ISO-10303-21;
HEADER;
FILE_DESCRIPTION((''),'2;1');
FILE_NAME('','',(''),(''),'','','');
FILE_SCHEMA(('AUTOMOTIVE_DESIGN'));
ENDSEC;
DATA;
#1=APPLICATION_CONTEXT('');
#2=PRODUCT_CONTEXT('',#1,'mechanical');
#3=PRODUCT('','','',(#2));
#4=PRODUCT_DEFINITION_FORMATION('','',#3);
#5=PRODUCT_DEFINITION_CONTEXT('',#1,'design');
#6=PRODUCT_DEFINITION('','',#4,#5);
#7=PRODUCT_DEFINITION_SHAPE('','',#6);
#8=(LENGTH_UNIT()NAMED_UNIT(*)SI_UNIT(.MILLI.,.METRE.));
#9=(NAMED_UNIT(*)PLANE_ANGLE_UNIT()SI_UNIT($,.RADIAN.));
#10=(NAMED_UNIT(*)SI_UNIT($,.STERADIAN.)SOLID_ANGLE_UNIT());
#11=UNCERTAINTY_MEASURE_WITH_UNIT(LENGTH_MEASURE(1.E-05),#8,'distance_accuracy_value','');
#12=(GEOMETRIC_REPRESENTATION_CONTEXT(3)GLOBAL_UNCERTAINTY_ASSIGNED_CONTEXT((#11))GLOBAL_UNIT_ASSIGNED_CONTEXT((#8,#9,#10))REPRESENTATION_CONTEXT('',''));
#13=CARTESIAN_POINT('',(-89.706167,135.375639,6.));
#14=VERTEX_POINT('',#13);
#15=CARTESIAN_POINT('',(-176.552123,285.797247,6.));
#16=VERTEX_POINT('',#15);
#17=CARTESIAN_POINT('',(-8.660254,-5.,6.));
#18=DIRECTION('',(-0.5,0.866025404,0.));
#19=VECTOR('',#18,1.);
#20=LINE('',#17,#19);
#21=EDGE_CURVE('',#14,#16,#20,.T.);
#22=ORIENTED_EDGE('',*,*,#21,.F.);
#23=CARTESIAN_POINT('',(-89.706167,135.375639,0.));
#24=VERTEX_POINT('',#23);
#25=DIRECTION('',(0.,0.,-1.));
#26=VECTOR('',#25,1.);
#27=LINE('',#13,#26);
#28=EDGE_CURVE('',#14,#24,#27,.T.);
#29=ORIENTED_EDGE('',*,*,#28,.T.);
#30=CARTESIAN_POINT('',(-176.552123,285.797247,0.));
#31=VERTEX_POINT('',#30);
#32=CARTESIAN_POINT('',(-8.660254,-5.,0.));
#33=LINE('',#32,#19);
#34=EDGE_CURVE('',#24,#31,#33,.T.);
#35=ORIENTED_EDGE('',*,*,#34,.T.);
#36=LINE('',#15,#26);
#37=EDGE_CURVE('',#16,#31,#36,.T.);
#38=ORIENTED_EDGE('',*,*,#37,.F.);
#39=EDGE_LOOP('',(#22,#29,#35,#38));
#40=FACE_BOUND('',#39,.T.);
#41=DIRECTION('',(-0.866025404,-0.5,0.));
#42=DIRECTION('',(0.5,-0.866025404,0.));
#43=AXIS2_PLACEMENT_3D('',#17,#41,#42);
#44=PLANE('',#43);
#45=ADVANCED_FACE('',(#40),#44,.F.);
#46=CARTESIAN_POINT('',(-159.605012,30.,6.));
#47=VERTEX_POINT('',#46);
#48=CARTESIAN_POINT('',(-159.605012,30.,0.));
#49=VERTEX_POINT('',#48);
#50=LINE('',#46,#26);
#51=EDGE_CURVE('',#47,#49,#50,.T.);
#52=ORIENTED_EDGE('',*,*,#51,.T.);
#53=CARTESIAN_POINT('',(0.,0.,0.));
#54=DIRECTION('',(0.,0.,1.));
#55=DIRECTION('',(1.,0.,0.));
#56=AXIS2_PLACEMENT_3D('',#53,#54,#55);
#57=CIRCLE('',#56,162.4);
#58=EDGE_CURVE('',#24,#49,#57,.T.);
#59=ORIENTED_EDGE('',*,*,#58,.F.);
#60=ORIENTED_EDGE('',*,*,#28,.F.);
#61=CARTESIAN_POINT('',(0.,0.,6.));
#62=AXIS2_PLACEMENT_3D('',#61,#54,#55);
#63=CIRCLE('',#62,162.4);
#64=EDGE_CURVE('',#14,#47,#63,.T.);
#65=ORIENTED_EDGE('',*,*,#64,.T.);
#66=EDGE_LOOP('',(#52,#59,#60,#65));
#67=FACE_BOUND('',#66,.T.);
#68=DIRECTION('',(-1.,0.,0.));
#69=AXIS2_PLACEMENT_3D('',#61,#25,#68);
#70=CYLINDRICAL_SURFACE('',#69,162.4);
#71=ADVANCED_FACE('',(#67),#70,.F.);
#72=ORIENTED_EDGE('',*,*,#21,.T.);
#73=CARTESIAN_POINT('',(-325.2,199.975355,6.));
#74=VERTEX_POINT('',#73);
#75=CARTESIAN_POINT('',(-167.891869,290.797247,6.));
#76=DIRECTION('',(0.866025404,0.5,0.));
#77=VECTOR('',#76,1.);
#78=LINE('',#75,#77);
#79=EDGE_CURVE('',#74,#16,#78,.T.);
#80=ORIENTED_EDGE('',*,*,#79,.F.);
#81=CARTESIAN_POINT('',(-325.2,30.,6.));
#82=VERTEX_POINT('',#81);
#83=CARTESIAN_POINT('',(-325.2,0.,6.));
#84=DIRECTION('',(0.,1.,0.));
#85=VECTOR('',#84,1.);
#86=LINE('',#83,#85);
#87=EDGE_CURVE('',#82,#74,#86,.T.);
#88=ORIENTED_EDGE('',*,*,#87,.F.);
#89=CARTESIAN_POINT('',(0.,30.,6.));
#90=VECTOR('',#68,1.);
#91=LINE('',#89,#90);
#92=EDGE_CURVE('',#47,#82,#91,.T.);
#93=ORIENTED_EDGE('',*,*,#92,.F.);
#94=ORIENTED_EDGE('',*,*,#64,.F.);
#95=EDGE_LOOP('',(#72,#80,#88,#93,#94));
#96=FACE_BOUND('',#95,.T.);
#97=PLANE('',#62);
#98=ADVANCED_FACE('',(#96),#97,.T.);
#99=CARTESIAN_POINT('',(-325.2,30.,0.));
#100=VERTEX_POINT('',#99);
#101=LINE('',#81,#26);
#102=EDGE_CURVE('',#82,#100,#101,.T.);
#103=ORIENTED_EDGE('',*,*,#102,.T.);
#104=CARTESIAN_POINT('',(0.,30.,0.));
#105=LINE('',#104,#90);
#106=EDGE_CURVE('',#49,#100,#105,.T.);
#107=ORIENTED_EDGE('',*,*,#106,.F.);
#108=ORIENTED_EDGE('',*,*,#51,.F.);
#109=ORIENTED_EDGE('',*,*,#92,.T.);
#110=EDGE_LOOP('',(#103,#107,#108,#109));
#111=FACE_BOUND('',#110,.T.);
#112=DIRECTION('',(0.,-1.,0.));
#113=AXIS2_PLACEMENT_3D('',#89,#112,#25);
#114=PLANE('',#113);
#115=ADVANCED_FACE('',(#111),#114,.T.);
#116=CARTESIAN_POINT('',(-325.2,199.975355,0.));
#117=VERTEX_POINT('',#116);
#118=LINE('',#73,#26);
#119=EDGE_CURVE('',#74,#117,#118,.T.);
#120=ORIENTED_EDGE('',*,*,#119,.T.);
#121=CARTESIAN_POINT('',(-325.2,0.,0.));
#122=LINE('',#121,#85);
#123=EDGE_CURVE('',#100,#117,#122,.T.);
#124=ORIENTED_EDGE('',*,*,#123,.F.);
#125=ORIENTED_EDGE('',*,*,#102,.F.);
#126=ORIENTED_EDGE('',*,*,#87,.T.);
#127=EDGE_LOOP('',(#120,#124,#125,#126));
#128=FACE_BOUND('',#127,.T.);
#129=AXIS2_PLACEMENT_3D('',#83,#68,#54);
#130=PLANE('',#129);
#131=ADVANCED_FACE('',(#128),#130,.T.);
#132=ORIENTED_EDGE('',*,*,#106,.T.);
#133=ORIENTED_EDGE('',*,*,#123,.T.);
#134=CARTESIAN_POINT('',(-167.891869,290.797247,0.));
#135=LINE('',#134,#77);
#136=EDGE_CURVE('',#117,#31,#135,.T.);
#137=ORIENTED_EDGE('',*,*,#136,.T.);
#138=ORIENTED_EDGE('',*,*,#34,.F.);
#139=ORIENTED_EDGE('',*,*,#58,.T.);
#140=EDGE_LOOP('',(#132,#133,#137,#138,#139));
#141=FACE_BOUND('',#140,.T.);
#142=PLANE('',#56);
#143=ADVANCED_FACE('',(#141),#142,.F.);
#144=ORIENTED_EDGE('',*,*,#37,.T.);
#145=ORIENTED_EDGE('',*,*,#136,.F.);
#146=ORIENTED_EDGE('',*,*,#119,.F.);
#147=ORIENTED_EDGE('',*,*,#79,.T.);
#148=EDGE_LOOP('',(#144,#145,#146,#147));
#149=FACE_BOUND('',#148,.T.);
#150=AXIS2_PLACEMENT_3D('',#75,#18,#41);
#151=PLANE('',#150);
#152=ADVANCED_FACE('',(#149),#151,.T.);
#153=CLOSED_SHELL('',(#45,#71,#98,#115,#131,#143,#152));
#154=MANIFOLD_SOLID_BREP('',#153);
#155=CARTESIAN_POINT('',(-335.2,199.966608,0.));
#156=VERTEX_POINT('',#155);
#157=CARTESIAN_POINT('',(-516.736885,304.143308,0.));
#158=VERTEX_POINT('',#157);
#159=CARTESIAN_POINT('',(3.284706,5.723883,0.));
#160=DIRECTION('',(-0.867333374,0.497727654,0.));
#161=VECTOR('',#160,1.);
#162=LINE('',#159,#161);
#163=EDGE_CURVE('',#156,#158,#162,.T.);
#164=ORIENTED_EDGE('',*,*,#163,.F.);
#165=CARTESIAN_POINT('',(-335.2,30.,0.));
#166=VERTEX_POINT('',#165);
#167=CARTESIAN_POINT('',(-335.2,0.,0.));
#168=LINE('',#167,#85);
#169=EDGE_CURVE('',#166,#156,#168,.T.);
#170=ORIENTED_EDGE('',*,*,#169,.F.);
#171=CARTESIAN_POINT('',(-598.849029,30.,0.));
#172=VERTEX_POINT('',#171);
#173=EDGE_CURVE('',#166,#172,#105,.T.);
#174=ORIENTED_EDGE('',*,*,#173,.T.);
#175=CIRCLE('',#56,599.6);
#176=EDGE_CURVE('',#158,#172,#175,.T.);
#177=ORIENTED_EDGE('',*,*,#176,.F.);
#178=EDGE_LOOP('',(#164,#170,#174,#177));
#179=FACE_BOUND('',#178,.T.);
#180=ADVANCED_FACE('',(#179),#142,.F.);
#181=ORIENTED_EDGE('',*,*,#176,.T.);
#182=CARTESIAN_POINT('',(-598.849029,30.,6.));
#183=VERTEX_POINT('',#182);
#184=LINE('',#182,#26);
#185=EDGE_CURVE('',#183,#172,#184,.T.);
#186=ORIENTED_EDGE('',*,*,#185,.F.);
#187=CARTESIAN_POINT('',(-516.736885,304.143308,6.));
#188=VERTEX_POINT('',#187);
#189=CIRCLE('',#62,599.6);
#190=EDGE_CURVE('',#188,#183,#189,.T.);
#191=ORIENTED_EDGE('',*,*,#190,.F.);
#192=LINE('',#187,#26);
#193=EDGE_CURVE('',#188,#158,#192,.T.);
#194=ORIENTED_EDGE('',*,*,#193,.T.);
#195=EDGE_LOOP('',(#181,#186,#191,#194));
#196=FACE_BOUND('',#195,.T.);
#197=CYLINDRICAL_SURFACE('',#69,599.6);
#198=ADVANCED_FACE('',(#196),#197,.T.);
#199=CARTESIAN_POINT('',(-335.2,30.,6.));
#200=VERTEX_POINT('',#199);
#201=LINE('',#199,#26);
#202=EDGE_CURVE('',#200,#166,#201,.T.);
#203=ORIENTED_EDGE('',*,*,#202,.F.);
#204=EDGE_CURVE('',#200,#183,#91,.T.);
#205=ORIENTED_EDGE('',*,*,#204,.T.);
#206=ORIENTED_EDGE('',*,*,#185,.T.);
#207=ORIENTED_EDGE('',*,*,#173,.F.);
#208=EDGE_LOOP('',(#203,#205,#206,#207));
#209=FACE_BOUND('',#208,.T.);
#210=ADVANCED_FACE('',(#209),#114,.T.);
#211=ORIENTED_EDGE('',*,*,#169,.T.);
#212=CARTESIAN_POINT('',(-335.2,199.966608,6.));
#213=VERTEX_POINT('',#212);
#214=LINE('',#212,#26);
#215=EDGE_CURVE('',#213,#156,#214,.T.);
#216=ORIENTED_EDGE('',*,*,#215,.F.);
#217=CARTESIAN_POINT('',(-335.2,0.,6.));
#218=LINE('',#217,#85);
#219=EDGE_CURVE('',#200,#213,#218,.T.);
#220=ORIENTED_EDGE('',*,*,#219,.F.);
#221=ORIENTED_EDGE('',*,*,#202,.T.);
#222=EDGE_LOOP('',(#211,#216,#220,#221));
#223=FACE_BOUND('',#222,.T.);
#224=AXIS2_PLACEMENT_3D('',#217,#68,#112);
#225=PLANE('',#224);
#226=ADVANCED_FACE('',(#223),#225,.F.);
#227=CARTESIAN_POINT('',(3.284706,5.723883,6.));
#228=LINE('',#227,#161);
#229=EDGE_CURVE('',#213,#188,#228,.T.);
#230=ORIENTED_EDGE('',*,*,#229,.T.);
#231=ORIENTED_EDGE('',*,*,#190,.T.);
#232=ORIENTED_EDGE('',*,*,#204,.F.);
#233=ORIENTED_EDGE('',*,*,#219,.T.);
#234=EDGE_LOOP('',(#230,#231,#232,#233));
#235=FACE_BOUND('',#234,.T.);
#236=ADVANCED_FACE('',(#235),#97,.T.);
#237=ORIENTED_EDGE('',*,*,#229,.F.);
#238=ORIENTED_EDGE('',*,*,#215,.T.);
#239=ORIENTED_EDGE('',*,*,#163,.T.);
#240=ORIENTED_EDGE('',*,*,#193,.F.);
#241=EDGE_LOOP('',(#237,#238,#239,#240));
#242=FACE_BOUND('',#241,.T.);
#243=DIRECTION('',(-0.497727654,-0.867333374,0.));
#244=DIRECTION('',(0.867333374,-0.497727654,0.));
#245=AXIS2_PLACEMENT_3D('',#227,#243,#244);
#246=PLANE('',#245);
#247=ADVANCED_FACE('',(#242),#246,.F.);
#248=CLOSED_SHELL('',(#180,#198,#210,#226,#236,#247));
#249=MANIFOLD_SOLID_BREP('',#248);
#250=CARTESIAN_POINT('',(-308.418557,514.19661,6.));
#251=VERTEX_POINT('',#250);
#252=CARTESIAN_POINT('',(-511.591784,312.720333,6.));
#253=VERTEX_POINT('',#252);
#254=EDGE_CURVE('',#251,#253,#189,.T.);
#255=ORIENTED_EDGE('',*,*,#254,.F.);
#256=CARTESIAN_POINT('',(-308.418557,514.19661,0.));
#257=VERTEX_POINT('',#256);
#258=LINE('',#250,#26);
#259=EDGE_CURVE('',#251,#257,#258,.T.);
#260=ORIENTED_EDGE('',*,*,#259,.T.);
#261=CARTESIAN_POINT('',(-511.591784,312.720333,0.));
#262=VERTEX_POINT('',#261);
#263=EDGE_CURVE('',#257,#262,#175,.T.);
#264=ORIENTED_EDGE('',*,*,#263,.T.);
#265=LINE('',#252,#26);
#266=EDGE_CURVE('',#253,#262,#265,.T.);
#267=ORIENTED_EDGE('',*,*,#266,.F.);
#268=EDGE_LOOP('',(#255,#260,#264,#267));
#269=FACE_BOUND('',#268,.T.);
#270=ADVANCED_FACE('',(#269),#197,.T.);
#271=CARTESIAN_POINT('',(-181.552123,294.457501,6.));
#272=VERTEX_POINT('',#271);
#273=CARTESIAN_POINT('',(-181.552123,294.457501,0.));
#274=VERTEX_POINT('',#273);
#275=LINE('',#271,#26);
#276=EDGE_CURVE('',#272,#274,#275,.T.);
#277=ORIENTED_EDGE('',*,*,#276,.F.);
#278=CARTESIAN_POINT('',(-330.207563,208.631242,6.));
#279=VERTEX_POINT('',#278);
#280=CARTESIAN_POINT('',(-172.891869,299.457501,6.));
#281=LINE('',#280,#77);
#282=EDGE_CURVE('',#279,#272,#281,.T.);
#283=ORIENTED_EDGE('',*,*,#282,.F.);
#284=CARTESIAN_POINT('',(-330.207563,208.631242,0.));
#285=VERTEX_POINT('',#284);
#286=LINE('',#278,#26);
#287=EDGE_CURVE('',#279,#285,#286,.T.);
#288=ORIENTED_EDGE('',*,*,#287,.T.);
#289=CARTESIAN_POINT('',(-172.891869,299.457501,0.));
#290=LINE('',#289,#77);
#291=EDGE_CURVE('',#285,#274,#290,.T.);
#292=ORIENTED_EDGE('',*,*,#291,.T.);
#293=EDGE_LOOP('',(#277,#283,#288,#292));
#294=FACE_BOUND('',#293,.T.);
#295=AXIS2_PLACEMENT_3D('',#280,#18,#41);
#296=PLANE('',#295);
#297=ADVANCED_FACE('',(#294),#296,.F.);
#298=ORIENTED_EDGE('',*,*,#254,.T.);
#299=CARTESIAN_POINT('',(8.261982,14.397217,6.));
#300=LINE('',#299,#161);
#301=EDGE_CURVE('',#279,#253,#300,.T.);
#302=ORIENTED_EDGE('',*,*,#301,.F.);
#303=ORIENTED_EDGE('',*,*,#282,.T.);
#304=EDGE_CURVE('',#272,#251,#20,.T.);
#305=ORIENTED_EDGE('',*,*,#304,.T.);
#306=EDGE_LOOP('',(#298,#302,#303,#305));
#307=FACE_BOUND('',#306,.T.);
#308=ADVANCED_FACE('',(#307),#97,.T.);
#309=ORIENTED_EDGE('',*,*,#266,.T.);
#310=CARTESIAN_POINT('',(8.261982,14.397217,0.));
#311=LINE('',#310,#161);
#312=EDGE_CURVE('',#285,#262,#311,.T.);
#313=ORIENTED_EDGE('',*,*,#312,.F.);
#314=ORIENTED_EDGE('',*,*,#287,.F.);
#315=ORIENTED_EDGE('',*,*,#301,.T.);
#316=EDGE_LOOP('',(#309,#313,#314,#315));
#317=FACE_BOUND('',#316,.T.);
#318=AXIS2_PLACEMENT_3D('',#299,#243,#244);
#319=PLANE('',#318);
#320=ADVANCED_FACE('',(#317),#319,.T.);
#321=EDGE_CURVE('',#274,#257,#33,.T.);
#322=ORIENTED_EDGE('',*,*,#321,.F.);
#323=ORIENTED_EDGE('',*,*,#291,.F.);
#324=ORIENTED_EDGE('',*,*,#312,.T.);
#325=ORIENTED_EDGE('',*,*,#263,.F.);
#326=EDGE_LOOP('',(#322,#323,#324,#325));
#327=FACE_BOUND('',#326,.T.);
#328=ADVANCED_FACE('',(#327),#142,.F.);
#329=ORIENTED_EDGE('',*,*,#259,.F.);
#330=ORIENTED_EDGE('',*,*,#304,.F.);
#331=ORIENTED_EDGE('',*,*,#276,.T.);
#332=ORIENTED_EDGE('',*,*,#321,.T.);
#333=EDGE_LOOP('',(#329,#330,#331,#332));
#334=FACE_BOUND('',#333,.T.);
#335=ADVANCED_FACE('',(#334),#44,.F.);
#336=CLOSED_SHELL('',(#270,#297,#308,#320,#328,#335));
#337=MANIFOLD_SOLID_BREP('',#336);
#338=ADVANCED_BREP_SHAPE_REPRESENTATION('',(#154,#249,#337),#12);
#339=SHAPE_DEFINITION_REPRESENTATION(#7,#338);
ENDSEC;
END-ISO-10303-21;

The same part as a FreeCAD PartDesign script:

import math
import FreeCAD as App
import Part
import Sketcher
from FreeCAD import Vector
Q = App.Units.Quantity

doc = App.newDocument("Part")
body = doc.addObject("PartDesign::Body", "Body")

# Sketch on XY plane
sketch1 = doc.addObject("Sketcher::SketchObject", "Sketch")
body.addObject(sketch1)
sketch1.AttachmentSupport = (doc.XY_Plane, [""])
sketch1.MapMode = "FlatFace"
sketch1.addGeometry([
    Part.LineSegment(Vector(-335, 200, 0), Vector(-517, 304, 0)),
    Part.ArcOfCircle(Part.Circle(Vector(0, 0, 0), Vector(0, 0, 1), 600), math.radians(150), math.radians(177)),
    Part.LineSegment(Vector(-599, 30, 0), Vector(-335, 30, 0)),
    Part.LineSegment(Vector(-335, 30, 0), Vector(-335, 200, 0)),
], False)
sketch1.addConstraint([
    Sketcher.Constraint("Coincident", 0, 2, 1, 1),
    Sketcher.Constraint("Coincident", 1, 2, 2, 1),
    Sketcher.Constraint("Coincident", 2, 2, 3, 1),
    Sketcher.Constraint("Coincident", 3, 2, 0, 1),
    Sketcher.Constraint("Horizontal", 2),
    Sketcher.Constraint("Vertical", 3),
    Sketcher.Constraint("Coincident", 1, 3, -1, 1),
    Sketcher.Constraint("Radius", 1, 599.6),
    Sketcher.Constraint("DistanceY", -1, 1, 2, 2, 30.0),
    Sketcher.Constraint("DistanceX", 2, 2, -1, 1, 335.2),
    Sketcher.Constraint("DistanceY", 3, 1, 3, 2, 169.966608),
    Sketcher.Constraint("DistanceY", 3, 2, 0, 2, 104.176699),
])
pad1 = doc.addObject("PartDesign::Pad", "Pad")
body.addObject(pad1)
pad1.Profile = sketch1
pad1.Length = 6
body2 = doc.addObject("PartDesign::Body", "Body001")

# Sketch on XY plane
sketch2 = doc.addObject("Sketcher::SketchObject", "Sketch001")
body2.addObject(sketch2)
sketch2.AttachmentSupport = (doc.getObject("XY_Plane001"), [""])
sketch2.MapMode = "FlatFace"
sketch2.addGeometry([
    Part.LineSegment(Vector(-182, 294, 0), Vector(-308, 514, 0)),
    Part.ArcOfCircle(Part.Circle(Vector(0, 0, 0), Vector(0, 0, 1), 600), math.radians(121), math.radians(149)),
    Part.LineSegment(Vector(-512, 313, 0), Vector(-330, 209, 0)),
    Part.LineSegment(Vector(-330, 209, 0), Vector(-182, 294, 0)),
], False)
sketch2.addConstraint([
    Sketcher.Constraint("Coincident", 0, 2, 1, 1),
    Sketcher.Constraint("Coincident", 1, 2, 2, 1),
    Sketcher.Constraint("Coincident", 2, 2, 3, 1),
    Sketcher.Constraint("Coincident", 3, 2, 0, 1),
    Sketcher.Constraint("Coincident", 1, 3, -1, 1),
    Sketcher.Constraint("Perpendicular", 0, 3),
    Sketcher.Constraint("Radius", 1, 599.6),
    Sketcher.Constraint("Angle", 0, Q("120 deg")),
    Sketcher.Constraint("DistanceY", -1, 1, 3, 2, 294.457501),
    Sketcher.Constraint("DistanceY", -1, 1, 0, 2, 514.19661),
    Sketcher.Constraint("DistanceX", 1, 2, 2, 2, 181.384221),
    Sketcher.Constraint("DistanceX", 2, 2, 3, 2, 148.65544),
])
pad2 = doc.addObject("PartDesign::Pad", "Pad001")
body2.addObject(pad2)
pad2.Profile = sketch2
pad2.Length = 6
body3 = doc.addObject("PartDesign::Body", "Body002")

# Sketch on XY plane
sketch3 = doc.addObject("Sketcher::SketchObject", "Sketch002")
body3.addObject(sketch3)
sketch3.AttachmentSupport = (doc.getObject("XY_Plane002"), [""])
sketch3.MapMode = "FlatFace"
sketch3.addGeometry([
    Part.ArcOfCircle(Part.Circle(Vector(0, 0, 0), Vector(0, 0, 1), 162), math.radians(124), math.radians(169)),  # 0
    Part.LineSegment(Vector(-90, 135, 0), Vector(-177, 286, 0)),  # 1
    Part.LineSegment(Vector(-177, 286, 0), Vector(-325, 200, 0)),  # 2
    Part.LineSegment(Vector(-325, 200, 0), Vector(-325, 30, 0)),  # 3
    Part.LineSegment(Vector(-325, 30, 0), Vector(-160, 30, 0)),  # 4
], False)
sketch3.addConstraint([
    Sketcher.Constraint("Coincident", 0, 1, 1, 1),
    Sketcher.Constraint("Coincident", 1, 2, 2, 1),
    Sketcher.Constraint("Coincident", 2, 2, 3, 1),
    Sketcher.Constraint("Coincident", 3, 2, 4, 1),
    Sketcher.Constraint("Coincident", 4, 2, 0, 2),
    Sketcher.Constraint("Vertical", 3),
    Sketcher.Constraint("Horizontal", 4),
    Sketcher.Constraint("Coincident", 0, 3, -1, 1),
    Sketcher.Constraint("Perpendicular", 1, 2),
    Sketcher.Constraint("Radius", 0, 162.4),
    Sketcher.Constraint("Angle", 1, Q("120 deg")),
    Sketcher.Constraint("DistanceY", -1, 1, 3, 2, 30.0),
    Sketcher.Constraint("DistanceX", 2, 2, -1, 1, 325.2),
    Sketcher.Constraint("Distance", 1, 173.691911),
    Sketcher.Constraint("DistanceY", 3, 2, 3, 1, 169.975355),
])
pad3 = doc.addObject("PartDesign::Pad", "Pad002")
body3.addObject(pad3)
pad3.Profile = sketch3
pad3.Length = 6

doc.recompute()
